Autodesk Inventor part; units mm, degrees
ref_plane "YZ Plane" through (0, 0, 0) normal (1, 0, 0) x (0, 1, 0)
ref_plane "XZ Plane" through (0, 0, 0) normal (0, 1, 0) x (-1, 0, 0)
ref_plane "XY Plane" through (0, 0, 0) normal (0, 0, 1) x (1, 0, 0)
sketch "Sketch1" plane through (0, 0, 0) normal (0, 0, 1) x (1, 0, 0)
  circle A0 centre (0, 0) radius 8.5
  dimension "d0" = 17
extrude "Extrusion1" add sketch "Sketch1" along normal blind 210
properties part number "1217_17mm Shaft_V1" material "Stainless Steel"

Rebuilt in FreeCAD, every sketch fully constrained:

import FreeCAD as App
import Part
import Sketcher
Q = App.Units.Quantity

doc = App.newDocument("Part")
body = doc.addObject("PartDesign::Body", "Body")

# Sketch on XY plane
sketch1 = doc.addObject("Sketcher::SketchObject", "Sketch")
body.addObject(sketch1)
sketch1.AttachmentSupport = (doc.XY_Plane, [""])
sketch1.MapMode = "FlatFace"
sketch1.addGeometry(Part.Circle(App.Vector(0, 0, 0), App.Vector(0, 0, 1), 8), False)
sketch1.addConstraint([
    Sketcher.Constraint("Coincident", 0, 3, -1, 1),
    Sketcher.Constraint("Diameter", 0, Q("17 mm")),
])
pad1 = doc.addObject("PartDesign::Pad", "Pad")
body.addObject(pad1)
pad1.Profile = sketch1
pad1.Length = 210

doc.recompute()
